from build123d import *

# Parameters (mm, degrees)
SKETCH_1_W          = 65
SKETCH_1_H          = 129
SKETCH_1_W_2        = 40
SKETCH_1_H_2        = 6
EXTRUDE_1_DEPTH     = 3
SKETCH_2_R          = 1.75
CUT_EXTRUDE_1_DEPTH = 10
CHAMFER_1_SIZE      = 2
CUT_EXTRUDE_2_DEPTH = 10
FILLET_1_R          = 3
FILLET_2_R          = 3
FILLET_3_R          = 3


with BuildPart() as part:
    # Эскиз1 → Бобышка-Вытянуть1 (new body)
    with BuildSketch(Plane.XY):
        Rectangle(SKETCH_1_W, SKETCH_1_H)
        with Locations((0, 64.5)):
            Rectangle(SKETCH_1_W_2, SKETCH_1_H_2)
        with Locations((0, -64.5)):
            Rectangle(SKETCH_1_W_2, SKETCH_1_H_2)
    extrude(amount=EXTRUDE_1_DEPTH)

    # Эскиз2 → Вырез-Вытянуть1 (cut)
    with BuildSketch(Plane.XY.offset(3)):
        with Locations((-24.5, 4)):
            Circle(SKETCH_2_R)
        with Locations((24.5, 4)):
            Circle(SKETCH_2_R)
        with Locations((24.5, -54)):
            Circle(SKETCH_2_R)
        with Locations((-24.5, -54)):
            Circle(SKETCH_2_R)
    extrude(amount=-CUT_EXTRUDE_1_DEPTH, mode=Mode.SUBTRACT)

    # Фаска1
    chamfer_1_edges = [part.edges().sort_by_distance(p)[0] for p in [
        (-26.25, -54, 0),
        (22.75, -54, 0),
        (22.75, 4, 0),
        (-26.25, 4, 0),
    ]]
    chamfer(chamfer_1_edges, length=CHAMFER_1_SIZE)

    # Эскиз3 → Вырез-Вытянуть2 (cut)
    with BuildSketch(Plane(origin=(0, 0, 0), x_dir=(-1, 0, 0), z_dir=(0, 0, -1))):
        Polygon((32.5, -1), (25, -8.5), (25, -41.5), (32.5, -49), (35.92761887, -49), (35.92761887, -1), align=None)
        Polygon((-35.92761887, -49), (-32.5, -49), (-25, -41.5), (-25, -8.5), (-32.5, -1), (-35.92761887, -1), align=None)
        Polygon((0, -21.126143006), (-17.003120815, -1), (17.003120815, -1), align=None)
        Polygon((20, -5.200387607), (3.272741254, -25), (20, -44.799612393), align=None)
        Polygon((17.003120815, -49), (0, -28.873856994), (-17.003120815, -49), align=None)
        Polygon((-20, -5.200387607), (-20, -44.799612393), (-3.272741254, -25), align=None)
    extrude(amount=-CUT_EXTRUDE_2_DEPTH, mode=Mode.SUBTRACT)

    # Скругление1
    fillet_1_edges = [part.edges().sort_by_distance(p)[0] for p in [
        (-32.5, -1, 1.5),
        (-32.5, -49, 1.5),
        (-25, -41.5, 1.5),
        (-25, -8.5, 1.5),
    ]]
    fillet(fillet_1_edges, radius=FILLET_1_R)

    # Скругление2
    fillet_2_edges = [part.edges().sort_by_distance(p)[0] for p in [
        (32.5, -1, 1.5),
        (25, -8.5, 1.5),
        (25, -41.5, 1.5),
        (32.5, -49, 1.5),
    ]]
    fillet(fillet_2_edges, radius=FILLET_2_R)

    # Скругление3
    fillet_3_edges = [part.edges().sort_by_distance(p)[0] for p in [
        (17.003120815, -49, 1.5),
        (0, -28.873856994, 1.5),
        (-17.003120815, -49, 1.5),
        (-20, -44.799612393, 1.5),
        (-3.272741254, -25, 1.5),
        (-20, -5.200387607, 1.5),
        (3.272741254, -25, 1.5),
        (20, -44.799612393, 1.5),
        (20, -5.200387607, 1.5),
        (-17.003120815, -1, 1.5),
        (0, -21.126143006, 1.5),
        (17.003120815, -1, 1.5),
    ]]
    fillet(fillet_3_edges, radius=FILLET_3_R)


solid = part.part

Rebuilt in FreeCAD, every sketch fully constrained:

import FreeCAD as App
import Part
import Sketcher
Q = App.Units.Quantity


def edges_at(feature, points):
    """Names of the edges that pass closest to the given points."""
    edges = feature.Shape.Edges
    near = lambda p: min(range(len(edges)), key=lambda i: edges[i].distToShape(Part.Vertex(*p))[0])
    return sorted({f"Edge{near(p) + 1}" for p in points})


def add_polygon(sketch, points):
    """Adds a closed chain of lines whose ends are joined by coincident constraints."""
    first, n = sketch.GeometryCount, len(points)
    for a, b in zip(points, points[1:] + points[:1]):
        sketch.addGeometry(Part.LineSegment(App.Vector(*a, 0), App.Vector(*b, 0)), False)
    for i in range(n):
        sketch.addConstraint(Sketcher.Constraint("Coincident", first + i, 2, first + (i + 1) % n, 1))

doc = App.newDocument("Part")
params = doc.addObject("Spreadsheet::Sheet", "Params")
for row, (alias, value) in enumerate([
    ("sketch1_width", "40 mm"),
    ("sketch1_height", "129 mm"),
    ("sketch1_height2", "3 mm"),
    ("sketch1_width2", "12.5 mm"),
    ("pad1_length", "3 mm"),
    ("sketch2_diameter", "3.5 mm"),
    ("pocket1_length", "10 mm"),
    ("chamfer_size", "2 mm"),
    ("sketch3_height", "33 mm"),
    ("sketch3_height2", "48 mm"),
    ("pocket2_length", "10 mm"),
    ("fillet_radius", "3 mm"),
    ("fillet2_radius", "3 mm"),
    ("fillet3_radius", "3 mm"),
], start=1):
    params.set(f"A{row}", alias)
    params.set(f"B{row}", "=" + value)
    params.setAlias(f"B{row}", alias)

body = doc.addObject("PartDesign::Body", "Body")

# Sketch on XY plane
sketch1 = body.newObject("Sketcher::SketchObject", "Sketch")
sketch1.AttachmentSupport = (doc.getObject("XY_Plane"), [""])
sketch1.MapMode = "FlatFace"
add_polygon(sketch1, [(-32.5, 64.5), (-32.5, -64.5), (-20, -64.5), (-20, -67.5), (20, -67.5), (20, -64.5), (32.5, -64.5), (32.5, 64.5), (20, 64.5), (20, 67.5), (-20, 67.5), (-20, 64.5)])  # lines 0-11
sketch1.addConstraint([
    Sketcher.Constraint("Vertical", 0),
    Sketcher.Constraint("Horizontal", 1),
    Sketcher.Constraint("Vertical", 2),
    Sketcher.Constraint("Horizontal", 3),
    Sketcher.Constraint("Vertical", 4),
    Sketcher.Constraint("Horizontal", 5),
    Sketcher.Constraint("Vertical", 6),
    Sketcher.Constraint("Horizontal", 7),
    Sketcher.Constraint("Vertical", 8),
    Sketcher.Constraint("Horizontal", 9),
    Sketcher.Constraint("Vertical", 10),
    Sketcher.Constraint("Horizontal", 11),
    Sketcher.Constraint("Symmetric", 0, 2, 6, 2, -1, 1),
    Sketcher.Constraint("Symmetric", 2, 2, 8, 2, -1, 1),
    Sketcher.Constraint("Symmetric", 4, 2, 10, 2, -1, 1),
    Sketcher.Constraint("Symmetric", 1, 2, 4, 2, -2),
    Sketcher.Constraint("DistanceX", 3, 1, 3, 2, Q("40 mm")),
    Sketcher.Constraint("DistanceY", 0, 2, 0, 1, Q("129 mm")),
    Sketcher.Constraint("DistanceY", 2, 2, 2, 1, Q("3 mm")),
    Sketcher.Constraint("DistanceX", 1, 1, 1, 2, Q("12.5 mm")),
])
sketch1.setExpression("Constraints[28]", "Params.sketch1_width")
sketch1.setExpression("Constraints[29]", "Params.sketch1_height")
sketch1.setExpression("Constraints[30]", "Params.sketch1_height2")
sketch1.setExpression("Constraints[31]", "Params.sketch1_width2")
pad1 = body.newObject("PartDesign::Pad", "Pad")
pad1.Profile = sketch1
pad1.setExpression("Length", "Params.pad1_length")

# Sketch on XY plane
sketch2 = body.newObject("Sketcher::SketchObject", "Sketch001")
sketch2.AttachmentSupport = (doc.getObject("XY_Plane"), [""])
sketch2.MapMode = "FlatFace"
sketch2.AttachmentOffset = App.Placement(App.Vector(0, 0, 3), App.Rotation())
sketch2.addGeometry([
    Part.Circle(App.Vector(-24.5, 4, 0), App.Vector(0, 0, 1), 1.8),
    Part.Circle(App.Vector(24.5, 4, 0), App.Vector(0, 0, 1), 1.8),
    Part.Circle(App.Vector(24.5, -54, 0), App.Vector(0, 0, 1), 1.8),
    Part.Circle(App.Vector(-24.5, -54, 0), App.Vector(0, 0, 1), 1.8),
], False)
sketch2.addConstraint([
    Sketcher.Constraint("Equal", 0, 1),
    Sketcher.Constraint("Equal", 1, 2),
    Sketcher.Constraint("Equal", 2, 3),
    Sketcher.Constraint("Symmetric", 0, 3, 1, 3, -2),
    Sketcher.Constraint("Symmetric", 2, 3, 3, 3, -2),
    Sketcher.Constraint("Vertical", 1, 3, 2, 3),
    Sketcher.Constraint("Diameter", 0, Q("3.5 mm")),
    Sketcher.Constraint("DistanceY", -1, 1, 0, 3, Q("4 mm")),
    Sketcher.Constraint("DistanceY", 2, 3, -1, 1, Q("54 mm")),
    Sketcher.Constraint("DistanceX", 0, 3, 1, 3, Q("49 mm")),
])
sketch2.setExpression("Constraints[6]", "Params.sketch2_diameter")
pocket1 = body.newObject("PartDesign::Pocket", "Pocket")
pocket1.Profile = sketch2
pocket1.setExpression("Length", "Params.pocket1_length")
doc.recompute()

chamfer = body.newObject("PartDesign::Chamfer", "Chamfer")
chamfer.Base = (pocket1, edges_at(pocket1, [
    (-26.25, -54, 0),
    (22.75, -54, 0),
    (22.75, 4, 0),
    (-26.25, 4, 0),
]))
chamfer.setExpression("Size", "Params.chamfer_size")

# Sketch on XY plane
sketch3 = body.newObject("Sketcher::SketchObject", "Sketch002")
sketch3.AttachmentSupport = (doc.getObject("XY_Plane"), [""])
sketch3.MapMode = "FlatFace"
add_polygon(sketch3, [(-32.5, -1), (-25, -8.5), (-25, -41.5), (-32.5, -49), (-35.9, -49), (-35.9, -1)])  # lines 0-5
add_polygon(sketch3, [(35.9, -49), (32.5, -49), (25, -41.5), (25, -8.5), (32.5, -1), (35.9, -1)])  # lines 6-11
add_polygon(sketch3, [(17, -1), (0, -21.1), (-17, -1)])  # lines 12-14
add_polygon(sketch3, [(-20, -5.2), (-3.3, -25), (-20, -44.8)])  # lines 15-17
add_polygon(sketch3, [(-17, -49), (0, -28.9), (17, -49)])  # lines 18-20
add_polygon(sketch3, [(20, -5.2), (20, -44.8), (3.3, -25)])  # lines 21-23
sketch3.addConstraint([
    Sketcher.Constraint("Vertical", 1),
    Sketcher.Constraint("Horizontal", 3),
    Sketcher.Constraint("Vertical", 4),
    Sketcher.Constraint("Horizontal", 5),
    Sketcher.Constraint("Horizontal", 6),
    Sketcher.Constraint("Vertical", 8),
    Sketcher.Constraint("Horizontal", 10),
    Sketcher.Constraint("Vertical", 11),
    Sketcher.Constraint("Horizontal", 14),
    Sketcher.Constraint("Vertical", 17),
    Sketcher.Constraint("Horizontal", 20),
    Sketcher.Constraint("Vertical", 21),
    Sketcher.Constraint("Symmetric", 2, 2, 6, 2, -2),
    Sketcher.Constraint("Symmetric", 1, 2, 7, 2, -2),
    Sketcher.Constraint("Symmetric", 5, 2, 9, 2, -2),
    Sketcher.Constraint("Symmetric", 16, 2, 21, 2, -2),
    Sketcher.Constraint("Symmetric", 15, 2, 22, 2, -2),
    Sketcher.Constraint("PointOnObject", 12, 2, -2),
    Sketcher.Constraint("PointOnObject", 18, 2, -2),
    Sketcher.Constraint("Perpendicular", 0, 2),
    Sketcher.Constraint("Perpendicular", 2, 7),
    Sketcher.Constraint("Perpendicular", 7, 9),
    Sketcher.Constraint("Parallel", 13, 15),
    Sketcher.Constraint("Parallel", 12, 16),
    Sketcher.Constraint("Parallel", 16, 18),
    Sketcher.Constraint("Parallel", 15, 19),
    Sketcher.Constraint("Parallel", 19, 22),
    Sketcher.Constraint("Parallel", 18, 23),
    Sketcher.Constraint("Horizontal", 10, 2, 13, 2),
    Sketcher.Constraint("Horizontal", 11, 2, 19, 2),
    Sketcher.Constraint("Vertical", 2, 2, 5, 2),
    Sketcher.Constraint("Vertical", 14, 2, 19, 2),
    Sketcher.Constraint("Equal", 5, 6),
    Sketcher.Constraint("DistanceY", 1, 2, 1, 1, Q("33 mm")),
    Sketcher.Constraint("DistanceY", 4, 1, 4, 2, Q("48 mm")),
    Sketcher.Constraint("DistanceX", 0, 2, -1, 1, Q("25 mm")),
    Sketcher.Constraint("DistanceY", 2, 2, -1, 1, Q("49 mm")),
    Sketcher.Constraint("DistanceY", 15, 2, -1, 1, Q("25 mm")),
    Sketcher.Constraint("DistanceX", 16, 2, -1, 1, Q("20 mm")),
    Sketcher.Constraint("DistanceX", 3, 2, 3, 1, Q("3.427619 mm")),
    Sketcher.Constraint("DistanceX", 14, 1, 14, 2, Q("34.006242 mm")),
    Sketcher.Constraint("DistanceY", 17, 1, 17, 2, Q("39.599225 mm")),
    Sketcher.Constraint("DistanceX", 15, 2, -1, 1, Q("3.272741 mm")),
])
sketch3.setExpression("Constraints[57]", "Params.sketch3_height")
sketch3.setExpression("Constraints[58]", "Params.sketch3_height2")
pocket2 = body.newObject("PartDesign::Pocket", "Pocket001")
pocket2.Profile = sketch3
pocket2.setExpression("Length", "Params.pocket2_length")
pocket2.Reversed = True
doc.recompute()

fillet = body.newObject("PartDesign::Fillet", "Fillet")
fillet.Base = (pocket2, edges_at(pocket2, [
    (-32.5, -1, 1.5),
    (-32.5, -49, 1.5),
    (-25, -41.5, 1.5),
    (-25, -8.5, 1.5),
]))
fillet.setExpression("Radius", "Params.fillet_radius")
doc.recompute()

fillet2 = body.newObject("PartDesign::Fillet", "Fillet001")
fillet2.Base = (fillet, edges_at(fillet, [
    (32.5, -1, 1.5),
    (25, -8.5, 1.5),
    (25, -41.5, 1.5),
    (32.5, -49, 1.5),
]))
fillet2.setExpression("Radius", "Params.fillet2_radius")
doc.recompute()

fillet3 = body.newObject("PartDesign::Fillet", "Fillet002")
fillet3.Base = (fillet2, edges_at(fillet2, [
    (17.003, -49, 1.5),
    (0, -28.874, 1.5),
    (-17.003, -49, 1.5),
    (-20, -44.8, 1.5),
    (-3.273, -25, 1.5),
    (-20, -5.2, 1.5),
    (3.273, -25, 1.5),
    (20, -44.8, 1.5),
    (20, -5.2, 1.5),
    (-17.003, -1, 1.5),
    (0, -21.126, 1.5),
    (17.003, -1, 1.5),
]))
fillet3.setExpression("Radius", "Params.fillet3_radius")

doc.recompute()
